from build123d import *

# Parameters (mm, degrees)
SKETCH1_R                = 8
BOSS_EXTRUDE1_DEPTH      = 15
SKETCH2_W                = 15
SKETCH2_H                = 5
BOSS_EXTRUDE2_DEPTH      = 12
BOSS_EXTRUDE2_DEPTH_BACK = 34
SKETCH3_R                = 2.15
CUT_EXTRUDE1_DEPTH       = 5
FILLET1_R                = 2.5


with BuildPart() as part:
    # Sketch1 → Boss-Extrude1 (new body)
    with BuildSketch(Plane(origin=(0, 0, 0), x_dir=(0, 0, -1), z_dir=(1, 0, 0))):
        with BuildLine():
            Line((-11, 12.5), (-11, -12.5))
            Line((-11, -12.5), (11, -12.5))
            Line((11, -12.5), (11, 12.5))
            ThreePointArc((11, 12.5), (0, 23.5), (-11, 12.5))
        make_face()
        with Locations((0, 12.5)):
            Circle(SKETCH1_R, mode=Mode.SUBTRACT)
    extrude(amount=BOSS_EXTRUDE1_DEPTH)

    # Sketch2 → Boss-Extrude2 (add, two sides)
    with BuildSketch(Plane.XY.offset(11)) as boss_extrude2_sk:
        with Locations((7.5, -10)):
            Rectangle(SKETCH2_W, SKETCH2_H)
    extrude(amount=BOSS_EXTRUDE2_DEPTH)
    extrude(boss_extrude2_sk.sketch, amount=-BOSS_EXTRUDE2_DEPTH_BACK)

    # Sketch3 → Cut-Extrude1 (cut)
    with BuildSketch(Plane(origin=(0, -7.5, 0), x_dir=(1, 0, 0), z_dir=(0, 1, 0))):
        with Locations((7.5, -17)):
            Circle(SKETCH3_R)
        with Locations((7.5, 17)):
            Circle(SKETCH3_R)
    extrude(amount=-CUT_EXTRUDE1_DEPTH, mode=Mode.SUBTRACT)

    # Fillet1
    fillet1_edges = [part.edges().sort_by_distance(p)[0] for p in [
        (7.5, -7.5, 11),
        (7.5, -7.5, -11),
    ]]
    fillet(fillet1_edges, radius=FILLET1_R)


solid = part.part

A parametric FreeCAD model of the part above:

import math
import FreeCAD as App
import Part
import Sketcher


def edges_at(feature, points):
    """Names of the edges that pass closest to the given points."""
    edges = feature.Shape.Edges
    near = lambda p: min(range(len(edges)), key=lambda i: edges[i].distToShape(Part.Vertex(*p))[0])
    return sorted({f"Edge{near(p) + 1}" for p in points})

doc = App.newDocument("Part")
body = doc.addObject("PartDesign::Body", "Body")

sketch1 = body.newObject("Sketcher::SketchObject", "Sketch")
sketch1.AttachmentSupport = (doc.getObject("YZ_Plane"), [""])
sketch1.MapMode = "FlatFace"
sketch1.addGeometry(Part.LineSegment(App.Vector(12, 11, 0), App.Vector(-12, 11, 0)), False)
sketch1.addGeometry(Part.LineSegment(App.Vector(-12, 11, 0), App.Vector(-12, -11, 0)), False)
sketch1.addGeometry(Part.LineSegment(App.Vector(-12, -11, 0), App.Vector(12, -11, 0)), False)
sketch1.addGeometry(Part.ArcOfCircle(Part.Circle(App.Vector(12, 0, 0), App.Vector(0, 0, 1), 11), math.radians(-90), math.radians(90)), False)
sketch1.addGeometry(Part.Circle(App.Vector(12, 0, 0), App.Vector(0, 0, 1), 8), False)
sketch1.addConstraint(Sketcher.Constraint("Coincident", 0, 2, 1, 1))
sketch1.addConstraint(Sketcher.Constraint("Coincident", 1, 2, 2, 1))
sketch1.addConstraint(Sketcher.Constraint("Tangent", 2, 2, 3, 1))
sketch1.addConstraint(Sketcher.Constraint("Tangent", 3, 2, 0, 1))
sketch1.addConstraint(Sketcher.Constraint("Horizontal", 0))
sketch1.addConstraint(Sketcher.Constraint("Vertical", 1))
sketch1.addConstraint(Sketcher.Constraint("Horizontal", 2))
sketch1.addConstraint(Sketcher.Constraint("Coincident", 4, 3, 3, 3))
sketch1.addConstraint(Sketcher.Constraint("Symmetric", 0, 2, 2, 2, -1, 1))
sketch1.addConstraint(Sketcher.Constraint("Diameter", 4, 16.0))
sketch1.addConstraint(Sketcher.Constraint("Radius", 3, 11.0))
sketch1.addConstraint(Sketcher.Constraint("DistanceX", 0, 2, 0, 1, 25.0))
pad1 = body.newObject("PartDesign::Pad", "Pad")
pad1.Profile = sketch1
pad1.Length = 15

sketch2 = body.newObject("Sketcher::SketchObject", "Sketch001")
sketch2.AttachmentSupport = (doc.getObject("XY_Plane"), [""])
sketch2.MapMode = "FlatFace"
sketch2.AttachmentOffset = App.Placement(App.Vector(0, 0, 11), App.Rotation())
sketch2.addGeometry(Part.LineSegment(App.Vector(0, -8, 0), App.Vector(0, -12, 0)), False)
sketch2.addGeometry(Part.LineSegment(App.Vector(0, -12, 0), App.Vector(15, -12, 0)), False)
sketch2.addGeometry(Part.LineSegment(App.Vector(15, -12, 0), App.Vector(15, -8, 0)), False)
sketch2.addGeometry(Part.LineSegment(App.Vector(15, -8, 0), App.Vector(0, -8, 0)), False)
sketch2.addConstraint(Sketcher.Constraint("Coincident", 0, 2, 1, 1))
sketch2.addConstraint(Sketcher.Constraint("Coincident", 1, 2, 2, 1))
sketch2.addConstraint(Sketcher.Constraint("Coincident", 2, 2, 3, 1))
sketch2.addConstraint(Sketcher.Constraint("Coincident", 3, 2, 0, 1))
sketch2.addConstraint(Sketcher.Constraint("Vertical", 0))
sketch2.addConstraint(Sketcher.Constraint("Horizontal", 1))
sketch2.addConstraint(Sketcher.Constraint("Vertical", 2))
sketch2.addConstraint(Sketcher.Constraint("Horizontal", 3))
sketch2.addConstraint(Sketcher.Constraint("PointOnObject", 0, 2, -2))
sketch2.addConstraint(Sketcher.Constraint("DistanceX", 1, 1, 1, 2, 15.0))
sketch2.addConstraint(Sketcher.Constraint("DistanceY", 0, 2, 0, 1, 5.0))
sketch2.addConstraint(Sketcher.Constraint("DistanceY", 0, 2, -1, 1, 12.5))
pad2 = body.newObject("PartDesign::Pad", "Pad001")
pad2.Profile = sketch2
pad2.Type = "TwoLengths"
pad2.Length = 12
pad2.Length2 = 34

sketch3 = body.newObject("Sketcher::SketchObject", "Sketch002")
sketch3.AttachmentSupport = (doc.getObject("XZ_Plane"), [""])
sketch3.MapMode = "FlatFace"
sketch3.AttachmentOffset = App.Placement(App.Vector(0, 0, 7.5), App.Rotation())
sketch3.addGeometry(Part.Circle(App.Vector(7.5, 17, 0), App.Vector(0, 0, 1), 2.1), False)
sketch3.addGeometry(Part.Circle(App.Vector(7.5, -17, 0), App.Vector(0, 0, 1), 2.1), False)
sketch3.addConstraint(Sketcher.Constraint("Equal", 0, 1))
sketch3.addConstraint(Sketcher.Constraint("Symmetric", 0, 3, 1, 3, -1))
sketch3.addConstraint(Sketcher.Constraint("Diameter", 0, 4.3))
sketch3.addConstraint(Sketcher.Constraint("DistanceY", -1, 1, 0, 3, 17.0))
sketch3.addConstraint(Sketcher.Constraint("DistanceX", -1, 1, 0, 3, 7.5))
pocket1 = body.newObject("PartDesign::Pocket", "Pocket")
pocket1.Profile = sketch3
pocket1.Length = 5
pocket1.Reversed = True
doc.recompute()

fillet = body.newObject("PartDesign::Fillet", "Fillet")
fillet.Base = (pocket1, edges_at(pocket1, [(7.5, -7.5, 11), (7.5, -7.5, -11)]))
fillet.Radius = 2.5

doc.recompute()
